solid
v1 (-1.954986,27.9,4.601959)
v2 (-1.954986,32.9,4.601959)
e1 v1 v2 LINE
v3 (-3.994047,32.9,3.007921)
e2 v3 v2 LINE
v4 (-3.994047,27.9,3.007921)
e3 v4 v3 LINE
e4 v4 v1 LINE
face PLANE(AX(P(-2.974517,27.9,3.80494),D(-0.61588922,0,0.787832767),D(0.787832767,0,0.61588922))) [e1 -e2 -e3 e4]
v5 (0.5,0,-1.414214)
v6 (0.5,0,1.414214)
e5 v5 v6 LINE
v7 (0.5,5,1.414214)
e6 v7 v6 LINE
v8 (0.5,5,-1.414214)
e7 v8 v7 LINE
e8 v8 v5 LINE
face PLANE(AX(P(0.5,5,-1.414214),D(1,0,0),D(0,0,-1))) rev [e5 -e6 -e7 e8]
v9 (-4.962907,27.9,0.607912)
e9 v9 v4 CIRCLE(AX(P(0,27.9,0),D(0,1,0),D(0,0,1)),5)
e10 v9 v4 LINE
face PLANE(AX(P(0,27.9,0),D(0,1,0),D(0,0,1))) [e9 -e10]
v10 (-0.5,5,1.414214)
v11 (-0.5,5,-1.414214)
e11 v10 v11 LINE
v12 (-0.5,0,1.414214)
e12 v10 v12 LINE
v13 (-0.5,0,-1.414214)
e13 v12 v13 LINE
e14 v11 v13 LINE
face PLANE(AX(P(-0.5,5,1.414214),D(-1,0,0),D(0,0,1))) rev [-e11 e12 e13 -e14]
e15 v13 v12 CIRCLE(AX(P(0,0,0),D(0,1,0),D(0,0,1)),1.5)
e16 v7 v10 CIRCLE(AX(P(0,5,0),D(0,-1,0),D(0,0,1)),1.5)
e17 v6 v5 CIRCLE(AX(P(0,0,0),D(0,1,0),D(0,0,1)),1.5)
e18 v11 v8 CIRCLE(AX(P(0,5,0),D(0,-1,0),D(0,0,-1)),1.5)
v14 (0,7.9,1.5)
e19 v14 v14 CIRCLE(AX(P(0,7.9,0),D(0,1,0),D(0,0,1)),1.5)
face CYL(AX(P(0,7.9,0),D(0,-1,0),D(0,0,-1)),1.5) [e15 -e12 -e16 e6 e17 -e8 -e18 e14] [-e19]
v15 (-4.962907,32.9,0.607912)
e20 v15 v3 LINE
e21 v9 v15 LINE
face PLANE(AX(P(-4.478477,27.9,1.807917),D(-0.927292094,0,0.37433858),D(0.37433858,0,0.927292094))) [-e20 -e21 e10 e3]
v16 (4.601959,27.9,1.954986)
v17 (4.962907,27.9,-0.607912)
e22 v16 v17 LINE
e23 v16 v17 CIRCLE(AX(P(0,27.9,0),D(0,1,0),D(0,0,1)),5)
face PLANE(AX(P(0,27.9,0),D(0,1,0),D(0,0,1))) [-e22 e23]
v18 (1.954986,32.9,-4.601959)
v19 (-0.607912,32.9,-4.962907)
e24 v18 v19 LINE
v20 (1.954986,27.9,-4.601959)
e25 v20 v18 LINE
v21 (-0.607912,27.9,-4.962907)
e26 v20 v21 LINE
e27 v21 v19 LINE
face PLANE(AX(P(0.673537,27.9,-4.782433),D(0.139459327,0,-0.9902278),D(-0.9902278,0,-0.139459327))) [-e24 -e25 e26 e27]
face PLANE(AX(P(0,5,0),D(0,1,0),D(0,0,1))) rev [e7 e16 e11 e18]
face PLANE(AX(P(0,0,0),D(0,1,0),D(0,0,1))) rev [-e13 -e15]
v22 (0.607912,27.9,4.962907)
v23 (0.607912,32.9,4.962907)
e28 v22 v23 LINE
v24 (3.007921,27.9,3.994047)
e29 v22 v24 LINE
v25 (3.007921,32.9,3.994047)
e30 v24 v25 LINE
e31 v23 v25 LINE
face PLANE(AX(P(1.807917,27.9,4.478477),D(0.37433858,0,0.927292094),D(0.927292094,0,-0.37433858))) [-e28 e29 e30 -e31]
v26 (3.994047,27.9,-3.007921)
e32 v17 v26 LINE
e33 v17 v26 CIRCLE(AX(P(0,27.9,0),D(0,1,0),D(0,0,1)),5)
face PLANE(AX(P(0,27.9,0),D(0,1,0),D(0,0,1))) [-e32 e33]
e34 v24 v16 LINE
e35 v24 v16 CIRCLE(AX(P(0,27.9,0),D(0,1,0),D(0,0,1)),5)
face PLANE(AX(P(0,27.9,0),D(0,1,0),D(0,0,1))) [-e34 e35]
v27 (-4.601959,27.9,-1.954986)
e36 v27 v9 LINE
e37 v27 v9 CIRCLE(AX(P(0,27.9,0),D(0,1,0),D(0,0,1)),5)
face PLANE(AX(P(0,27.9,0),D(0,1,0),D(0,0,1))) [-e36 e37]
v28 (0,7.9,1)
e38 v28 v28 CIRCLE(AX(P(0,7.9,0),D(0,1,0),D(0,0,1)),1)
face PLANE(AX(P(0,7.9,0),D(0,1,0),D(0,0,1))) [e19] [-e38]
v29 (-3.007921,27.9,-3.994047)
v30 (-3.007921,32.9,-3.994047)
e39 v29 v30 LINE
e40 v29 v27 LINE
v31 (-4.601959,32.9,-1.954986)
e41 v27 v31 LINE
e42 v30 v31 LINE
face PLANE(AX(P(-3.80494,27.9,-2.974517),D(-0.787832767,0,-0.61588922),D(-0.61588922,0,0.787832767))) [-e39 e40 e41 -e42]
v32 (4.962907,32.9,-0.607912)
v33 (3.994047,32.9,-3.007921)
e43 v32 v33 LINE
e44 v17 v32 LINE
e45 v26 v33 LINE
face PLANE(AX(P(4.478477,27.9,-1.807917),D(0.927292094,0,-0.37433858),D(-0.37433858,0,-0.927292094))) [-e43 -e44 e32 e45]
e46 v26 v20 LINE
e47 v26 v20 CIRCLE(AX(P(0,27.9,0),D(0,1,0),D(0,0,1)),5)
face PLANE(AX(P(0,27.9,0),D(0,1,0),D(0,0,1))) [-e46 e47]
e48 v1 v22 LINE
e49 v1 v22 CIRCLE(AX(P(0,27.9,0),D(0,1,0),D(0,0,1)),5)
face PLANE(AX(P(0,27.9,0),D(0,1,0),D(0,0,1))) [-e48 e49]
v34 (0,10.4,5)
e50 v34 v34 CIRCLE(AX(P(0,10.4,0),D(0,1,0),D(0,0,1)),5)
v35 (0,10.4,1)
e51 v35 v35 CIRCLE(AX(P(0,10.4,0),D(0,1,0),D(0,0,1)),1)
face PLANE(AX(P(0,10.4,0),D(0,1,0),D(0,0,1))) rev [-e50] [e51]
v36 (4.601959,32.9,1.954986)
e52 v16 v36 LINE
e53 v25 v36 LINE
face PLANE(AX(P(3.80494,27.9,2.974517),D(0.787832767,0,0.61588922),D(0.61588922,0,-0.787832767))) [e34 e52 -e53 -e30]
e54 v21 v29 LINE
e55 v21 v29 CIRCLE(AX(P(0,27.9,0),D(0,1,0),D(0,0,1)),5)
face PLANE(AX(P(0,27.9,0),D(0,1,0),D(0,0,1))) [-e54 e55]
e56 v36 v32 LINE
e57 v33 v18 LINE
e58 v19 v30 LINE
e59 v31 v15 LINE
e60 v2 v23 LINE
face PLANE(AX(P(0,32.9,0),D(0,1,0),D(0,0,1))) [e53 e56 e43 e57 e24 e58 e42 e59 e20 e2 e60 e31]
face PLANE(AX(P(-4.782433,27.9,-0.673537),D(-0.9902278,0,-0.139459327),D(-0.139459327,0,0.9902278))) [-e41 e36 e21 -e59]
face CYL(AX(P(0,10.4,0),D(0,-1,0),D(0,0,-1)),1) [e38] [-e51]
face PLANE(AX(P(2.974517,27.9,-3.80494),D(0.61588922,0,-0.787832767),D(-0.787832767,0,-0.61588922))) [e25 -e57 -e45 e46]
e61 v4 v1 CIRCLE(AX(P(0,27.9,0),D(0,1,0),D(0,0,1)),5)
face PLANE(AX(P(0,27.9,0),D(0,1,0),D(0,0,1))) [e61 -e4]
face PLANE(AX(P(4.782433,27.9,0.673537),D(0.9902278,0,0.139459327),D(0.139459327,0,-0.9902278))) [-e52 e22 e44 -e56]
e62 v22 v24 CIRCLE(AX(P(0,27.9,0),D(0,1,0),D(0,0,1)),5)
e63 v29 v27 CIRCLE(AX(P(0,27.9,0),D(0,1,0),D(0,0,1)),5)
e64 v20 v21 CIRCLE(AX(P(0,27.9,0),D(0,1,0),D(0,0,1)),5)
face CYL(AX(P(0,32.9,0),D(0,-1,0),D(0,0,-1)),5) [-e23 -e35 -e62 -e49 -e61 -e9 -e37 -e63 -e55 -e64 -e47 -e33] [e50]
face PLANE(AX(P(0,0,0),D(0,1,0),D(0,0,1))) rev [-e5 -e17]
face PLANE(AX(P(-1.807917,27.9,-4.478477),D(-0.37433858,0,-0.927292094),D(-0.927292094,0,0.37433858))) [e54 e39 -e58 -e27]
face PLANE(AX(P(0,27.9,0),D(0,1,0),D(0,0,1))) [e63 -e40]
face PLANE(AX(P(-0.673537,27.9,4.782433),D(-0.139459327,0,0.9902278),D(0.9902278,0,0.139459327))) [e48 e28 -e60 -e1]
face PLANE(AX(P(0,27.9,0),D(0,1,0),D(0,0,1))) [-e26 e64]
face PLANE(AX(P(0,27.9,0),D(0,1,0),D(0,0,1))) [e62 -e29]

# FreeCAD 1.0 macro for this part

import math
import FreeCAD as App
import Part
import Sketcher
from FreeCAD import Vector
Q = App.Units.Quantity

doc = App.newDocument("Part")
body = doc.addObject("PartDesign::Body", "Body")

sketch1 = doc.addObject("Sketcher::SketchObject", "Sketch")
body.addObject(sketch1)
sketch1.AttachmentSupport = (doc.XZ_Plane, [""])
sketch1.MapMode = "FlatFace"
sketch1.addGeometry(Part.Circle(Vector(0, 0, 0), Vector(0, 0, 1), 1.5), False)
sketch1.addConstraint([
    Sketcher.Constraint("Coincident", 0, 3, -1, 1),
    Sketcher.Constraint("Diameter", 0, Q("3 mm")),
])
pad1 = doc.addObject("PartDesign::Pad", "Pad")
body.addObject(pad1)
pad1.Profile = sketch1
pad1.Length = 7.9
pad1.Reversed = True

sketch2 = doc.addObject("Sketcher::SketchObject", "Sketch001")
body.addObject(sketch2)
sketch2.AttachmentSupport = (doc.XZ_Plane, [""])
sketch2.MapMode = "FlatFace"
sketch2.addGeometry([
    Part.LineSegment(Vector(-0.5, 1.4, 0), Vector(-0.5, -1.4, 0)),
    Part.ArcOfCircle(Part.Circle(Vector(0, 0, 0), Vector(0, 0, 1), 1.5), math.radians(-109), math.radians(-71)),
    Part.LineSegment(Vector(0.5, -1.4, 0), Vector(0.5, 1.4, 0)),
    Part.ArcOfCircle(Part.Circle(Vector(0, 0, 0), Vector(0, 0, 1), 1.5), math.radians(71), math.radians(109)),
], False)
sketch2.addConstraint([
    Sketcher.Constraint("Coincident", 0, 2, 1, 1),
    Sketcher.Constraint("Coincident", 1, 2, 2, 1),
    Sketcher.Constraint("Coincident", 2, 2, 3, 1),
    Sketcher.Constraint("Coincident", 3, 2, 0, 1),
    Sketcher.Constraint("Vertical", 0),
    Sketcher.Constraint("Vertical", 2),
    Sketcher.Constraint("Coincident", 1, 3, -1, 1),
    Sketcher.Constraint("Coincident", 3, 3, -1, 1),
    Sketcher.Constraint("Equal", 1, 3),
    Sketcher.Constraint("Horizontal", 0, 2, 1, 2),
    Sketcher.Constraint("Radius", 1, Q("1.5 mm")),
    Sketcher.Constraint("DistanceX", 0, 2, 1, 2, Q("1 mm")),
])
pocket1 = doc.addObject("PartDesign::Pocket", "Pocket")
body.addObject(pocket1)
pocket1.Profile = sketch2
pocket1.Length = 5

sketch3 = doc.addObject("Sketcher::SketchObject", "Sketch002")
body.addObject(sketch3)
sketch3.AttachmentSupport = (doc.XZ_Plane, [""])
sketch3.MapMode = "FlatFace"
sketch3.AttachmentOffset = App.Placement(Vector(0, 0, -7.9), App.Rotation())
sketch3.addGeometry(Part.Circle(Vector(0, 0, 0), Vector(0, 0, 1), 1), False)
sketch3.addConstraint([
    Sketcher.Constraint("Coincident", 0, 3, -1, 1),
    Sketcher.Constraint("Diameter", 0, Q("2 mm")),
])
pad2 = doc.addObject("PartDesign::Pad", "Pad001")
body.addObject(pad2)
pad2.Profile = sketch3
pad2.Length = 2.5
pad2.Reversed = True

sketch4 = doc.addObject("Sketcher::SketchObject", "Sketch003")
body.addObject(sketch4)
sketch4.AttachmentSupport = (doc.XZ_Plane, [""])
sketch4.MapMode = "FlatFace"
sketch4.AttachmentOffset = App.Placement(Vector(0, 0, -10.4), App.Rotation())
sketch4.addGeometry(Part.Circle(Vector(0, 0, 0), Vector(0, 0, 1), 5), False)
sketch4.addConstraint([
    Sketcher.Constraint("Coincident", 0, 3, -1, 1),
    Sketcher.Constraint("Diameter", 0, Q("10 mm")),
])
pad3 = doc.addObject("PartDesign::Pad", "Pad002")
body.addObject(pad3)
pad3.Profile = sketch4
pad3.Length = 22.5
pad3.Reversed = True

sketch5 = doc.addObject("Sketcher::SketchObject", "Sketch004")
body.addObject(sketch5)
sketch5.AttachmentSupport = (doc.XZ_Plane, [""])
sketch5.MapMode = "FlatFace"
sketch5.AttachmentOffset = App.Placement(Vector(0, 0, -27.9), App.Rotation())
sketch5.addGeometry([
    Part.ArcOfCircle(Part.Circle(Vector(0, 0, 0), Vector(0, 0, 1), 5), math.radians(83), math.radians(113)),
    Part.LineSegment(Vector(0.6, 5, 0), Vector(-2, 4.6, 0)),
    Part.ArcOfCircle(Part.Circle(Vector(0, 0, 0), Vector(0, 0, 1), 5), math.radians(53), math.radians(83)),
    Part.LineSegment(Vector(3, 4, 0), Vector(0.6, 5, 0)),
    Part.ArcOfCircle(Part.Circle(Vector(0, 0, 0), Vector(0, 0, 1), 5), math.radians(23), math.radians(53)),
    Part.LineSegment(Vector(4.6, 2, 0), Vector(3, 4, 0)),
    Part.ArcOfCircle(Part.Circle(Vector(0, 0, 0), Vector(0, 0, 1), 5), math.radians(-6.98), math.radians(0)),
    Part.LineSegment(Vector(5, -0.6, 0), Vector(4.6, 2, 0)),
    Part.ArcOfCircle(Part.Circle(Vector(0, 0, 0), Vector(0, 0, 1), 5), math.radians(0), math.radians(23)),
    Part.ArcOfCircle(Part.Circle(Vector(0, 0, 0), Vector(0, 0, 1), 5), math.radians(-37), math.radians(-7)),
    Part.LineSegment(Vector(4, -3, 0), Vector(5, -0.6, 0)),
    Part.LineSegment(Vector(-2, 4.6, 0), Vector(-4, 3, 0)),
    Part.ArcOfCircle(Part.Circle(Vector(0, 0, 0), Vector(0, 0, 1), 5), math.radians(113), math.radians(143)),
    Part.LineSegment(Vector(-4, 3, 0), Vector(-5, 0.6, 0)),
    Part.ArcOfCircle(Part.Circle(Vector(0, 0, 0), Vector(0, 0, 1), 5), math.radians(143), math.radians(173)),
    Part.LineSegment(Vector(-5, 0.6, 0), Vector(-4.6, -2, 0)),
    Part.ArcOfCircle(Part.Circle(Vector(0, 0, 0), Vector(0, 0, 1), 5), math.radians(173), math.radians(203)),
    Part.LineSegment(Vector(-4.6, -2, 0), Vector(-3, -4, 0)),
    Part.ArcOfCircle(Part.Circle(Vector(0, 0, 0), Vector(0, 0, 1), 5), math.radians(-157), math.radians(-127)),
    Part.LineSegment(Vector(-3, -4, 0), Vector(-0.6, -5, 0)),
    Part.ArcOfCircle(Part.Circle(Vector(0, 0, 0), Vector(0, 0, 1), 5), math.radians(-127), math.radians(-97)),
    Part.LineSegment(Vector(-0.6, -5, 0), Vector(2, -4.6, 0)),
    Part.ArcOfCircle(Part.Circle(Vector(0, 0, 0), Vector(0, 0, 1), 5), math.radians(-97), math.radians(-67)),
    Part.ArcOfCircle(Part.Circle(Vector(0, 0, 0), Vector(0, 0, 1), 5), math.radians(-67), math.radians(-37)),
    Part.LineSegment(Vector(2, -4.6, 0), Vector(4, -3, 0)),
], False)
sketch5.addConstraint([
    Sketcher.Constraint("Coincident", 0, 1, 1, 1),
    Sketcher.Constraint("Coincident", 1, 2, 0, 2),
    Sketcher.Constraint("Coincident", 2, 1, 3, 1),
    Sketcher.Constraint("Coincident", 3, 2, 2, 2),
    Sketcher.Constraint("Coincident", 4, 1, 5, 1),
    Sketcher.Constraint("Coincident", 5, 2, 4, 2),
    Sketcher.Constraint("Coincident", 6, 1, 7, 1),
    Sketcher.Constraint("Coincident", 7, 2, 8, 2),
    Sketcher.Constraint("Tangent", 8, 1, 6, 2),
    Sketcher.Constraint("Coincident", 9, 1, 10, 1),
    Sketcher.Constraint("Coincident", 10, 2, 9, 2),
    Sketcher.Constraint("Coincident", 11, 1, 12, 1),
    Sketcher.Constraint("Coincident", 12, 2, 11, 2),
    Sketcher.Constraint("Coincident", 13, 1, 14, 1),
    Sketcher.Constraint("Coincident", 14, 2, 13, 2),
    Sketcher.Constraint("Coincident", 15, 1, 16, 1),
    Sketcher.Constraint("Coincident", 16, 2, 15, 2),
    Sketcher.Constraint("Coincident", 17, 1, 18, 1),
    Sketcher.Constraint("Coincident", 18, 2, 17, 2),
    Sketcher.Constraint("Coincident", 19, 1, 20, 1),
    Sketcher.Constraint("Coincident", 20, 2, 19, 2),
    Sketcher.Constraint("Coincident", 21, 1, 22, 1),
    Sketcher.Constraint("Coincident", 22, 2, 21, 2),
    Sketcher.Constraint("Coincident", 23, 1, 24, 1),
    Sketcher.Constraint("Coincident", 24, 2, 23, 2),
    Sketcher.Constraint("Coincident", 0, 3, -1, 1),
    Sketcher.Constraint("Coincident", 2, 3, -1, 1),
    Sketcher.Constraint("Coincident", 4, 3, -1, 1),
    Sketcher.Constraint("Coincident", 6, 3, -1, 1),
    Sketcher.Constraint("Coincident", 9, 3, -1, 1),
    Sketcher.Constraint("Coincident", 12, 3, -1, 1),
    Sketcher.Constraint("Coincident", 14, 3, -1, 1),
    Sketcher.Constraint("Coincident", 16, 3, -1, 1),
    Sketcher.Constraint("Coincident", 18, 3, -1, 1),
    Sketcher.Constraint("Coincident", 20, 3, -1, 1),
    Sketcher.Constraint("Coincident", 22, 3, -1, 1),
    Sketcher.Constraint("Coincident", 23, 3, -1, 1),
    Sketcher.Constraint("Coincident", 3, 2, 0, 1),
    Sketcher.Constraint("Coincident", 5, 2, 2, 1),
    Sketcher.Constraint("Coincident", 7, 2, 4, 1),
    Sketcher.Constraint("Coincident", 10, 2, 6, 1),
    Sketcher.Constraint("Coincident", 11, 1, 1, 2),
    Sketcher.Constraint("Coincident", 13, 1, 12, 2),
    Sketcher.Constraint("Coincident", 15, 1, 14, 2),
    Sketcher.Constraint("Coincident", 17, 1, 16, 2),
    Sketcher.Constraint("Coincident", 19, 1, 18, 2),
    Sketcher.Constraint("Coincident", 21, 1, 20, 2),
    Sketcher.Constraint("Coincident", 23, 1, 22, 2),
    Sketcher.Constraint("Coincident", 24, 2, 9, 1),
    Sketcher.Constraint("PointOnObject", 8, 1, -1),
    Sketcher.Constraint("Perpendicular", 1, 7),
    Sketcher.Constraint("Perpendicular", 3, 10),
    Sketcher.Constraint("Perpendicular", 5, 11),
    Sketcher.Constraint("Parallel", 10, 13),
    Sketcher.Constraint("Parallel", 7, 15),
    Sketcher.Constraint("Perpendicular", 11, 17),
    Sketcher.Constraint("Perpendicular", 13, 19),
    Sketcher.Constraint("Perpendicular", 15, 21),
    Sketcher.Constraint("Equal", 1, 3),
    Sketcher.Constraint("Equal", 3, 5),
    Sketcher.Constraint("Equal", 5, 7),
    Sketcher.Constraint("Radius", 0, Q("5 mm")),
    Sketcher.Constraint("DistanceX", 1, 2, 0, 1, Q("2.562898 mm")),
])
pocket2 = doc.addObject("PartDesign::Pocket", "Pocket001")
body.addObject(pocket2)
pocket2.Profile = sketch5
pocket2.Length = 5

doc.recompute()
